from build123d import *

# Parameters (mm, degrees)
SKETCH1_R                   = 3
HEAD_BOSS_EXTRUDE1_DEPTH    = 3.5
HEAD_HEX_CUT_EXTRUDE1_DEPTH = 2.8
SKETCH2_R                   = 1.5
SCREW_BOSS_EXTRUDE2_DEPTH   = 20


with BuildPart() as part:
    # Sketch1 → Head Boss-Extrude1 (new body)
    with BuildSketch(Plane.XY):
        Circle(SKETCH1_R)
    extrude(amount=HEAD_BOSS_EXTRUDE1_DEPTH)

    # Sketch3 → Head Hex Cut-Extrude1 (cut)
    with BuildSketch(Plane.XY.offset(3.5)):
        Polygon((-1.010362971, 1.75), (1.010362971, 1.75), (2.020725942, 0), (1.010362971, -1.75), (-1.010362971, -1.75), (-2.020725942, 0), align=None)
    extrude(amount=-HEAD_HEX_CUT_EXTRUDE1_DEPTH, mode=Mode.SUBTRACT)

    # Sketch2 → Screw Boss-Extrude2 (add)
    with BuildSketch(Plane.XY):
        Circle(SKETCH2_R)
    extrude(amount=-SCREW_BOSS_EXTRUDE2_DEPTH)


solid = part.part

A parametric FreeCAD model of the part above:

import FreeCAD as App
import Part
import Sketcher
from FreeCAD import Vector
Q = App.Units.Quantity

doc = App.newDocument("Part")
body = doc.addObject("PartDesign::Body", "Body")

# Sketch on XY plane
sketch1 = body.newObject("Sketcher::SketchObject", "Sketch")
sketch1.AttachmentSupport = (doc.getObject("XY_Plane"), [""])
sketch1.MapMode = "FlatFace"
sketch1.addGeometry(Part.Circle(Vector(0, 0, 0), Vector(0, 0, 1), 3), False)
sketch1.addConstraint(Sketcher.Constraint("Coincident", 0, 3, -1, 1))
sketch1.addConstraint(Sketcher.Constraint("Diameter", 0, Q("6 mm")))
pad1 = body.newObject("PartDesign::Pad", "Pad")
pad1.Profile = sketch1
pad1.Length = 3.5

# Sketch on XY plane
sketch2 = body.newObject("Sketcher::SketchObject", "Sketch001")
sketch2.AttachmentSupport = (doc.getObject("XY_Plane"), [""])
sketch2.MapMode = "FlatFace"
sketch2.AttachmentOffset = App.Placement(Vector(0, 0, 3.5), App.Rotation())
sketch2.addGeometry(Part.LineSegment(Vector(1, 1.8, 0), Vector(-1, 1.8, 0)), False)
sketch2.addGeometry(Part.LineSegment(Vector(-1, 1.8, 0), Vector(-2, 0, 0)), False)
sketch2.addGeometry(Part.LineSegment(Vector(-2, 0, 0), Vector(-1, -1.8, 0)), False)
sketch2.addGeometry(Part.LineSegment(Vector(-1, -1.8, 0), Vector(1, -1.8, 0)), False)
sketch2.addGeometry(Part.LineSegment(Vector(1, -1.8, 0), Vector(2, 0, 0)), False)
sketch2.addGeometry(Part.LineSegment(Vector(2, 0, 0), Vector(1, 1.8, 0)), False)
sketch2.addConstraint(Sketcher.Constraint("Coincident", 0, 2, 1, 1))
sketch2.addConstraint(Sketcher.Constraint("Coincident", 1, 2, 2, 1))
sketch2.addConstraint(Sketcher.Constraint("Coincident", 2, 2, 3, 1))
sketch2.addConstraint(Sketcher.Constraint("Coincident", 3, 2, 4, 1))
sketch2.addConstraint(Sketcher.Constraint("Coincident", 4, 2, 5, 1))
sketch2.addConstraint(Sketcher.Constraint("Coincident", 5, 2, 0, 1))
sketch2.addConstraint(Sketcher.Constraint("Horizontal", 0))
sketch2.addConstraint(Sketcher.Constraint("Horizontal", 3))
sketch2.addConstraint(Sketcher.Constraint("Symmetric", 0, 2, 3, 2, -1, 1))
sketch2.addConstraint(Sketcher.Constraint("Symmetric", 1, 2, 4, 2, -1, 1))
sketch2.addConstraint(Sketcher.Constraint("PointOnObject", 1, 2, -1))
sketch2.addConstraint(Sketcher.Constraint("Parallel", 2, 5))
sketch2.addConstraint(Sketcher.Constraint("Vertical", 0, 2, 2, 2))
sketch2.addConstraint(Sketcher.Constraint("Angle", 1, Q("-120 deg")))
sketch2.addConstraint(Sketcher.Constraint("DistanceY", 2, 2, 0, 2, Q("3.5 mm")))
sketch2.addConstraint(Sketcher.Constraint("DistanceX", 0, 2, 0, 1, Q("2.020726 mm")))
pocket1 = body.newObject("PartDesign::Pocket", "Pocket")
pocket1.Profile = sketch2
pocket1.Length = 2.8

# Sketch on XY plane
sketch3 = body.newObject("Sketcher::SketchObject", "Sketch002")
sketch3.AttachmentSupport = (doc.getObject("XY_Plane"), [""])
sketch3.MapMode = "FlatFace"
sketch3.addGeometry(Part.Circle(Vector(0, 0, 0), Vector(0, 0, 1), 1.5), False)
sketch3.addConstraint(Sketcher.Constraint("Coincident", 0, 3, -1, 1))
sketch3.addConstraint(Sketcher.Constraint("Diameter", 0, Q("3 mm")))
pad2 = body.newObject("PartDesign::Pad", "Pad001")
pad2.Profile = sketch3
pad2.Length = 20
pad2.Reversed = True

doc.recompute()
